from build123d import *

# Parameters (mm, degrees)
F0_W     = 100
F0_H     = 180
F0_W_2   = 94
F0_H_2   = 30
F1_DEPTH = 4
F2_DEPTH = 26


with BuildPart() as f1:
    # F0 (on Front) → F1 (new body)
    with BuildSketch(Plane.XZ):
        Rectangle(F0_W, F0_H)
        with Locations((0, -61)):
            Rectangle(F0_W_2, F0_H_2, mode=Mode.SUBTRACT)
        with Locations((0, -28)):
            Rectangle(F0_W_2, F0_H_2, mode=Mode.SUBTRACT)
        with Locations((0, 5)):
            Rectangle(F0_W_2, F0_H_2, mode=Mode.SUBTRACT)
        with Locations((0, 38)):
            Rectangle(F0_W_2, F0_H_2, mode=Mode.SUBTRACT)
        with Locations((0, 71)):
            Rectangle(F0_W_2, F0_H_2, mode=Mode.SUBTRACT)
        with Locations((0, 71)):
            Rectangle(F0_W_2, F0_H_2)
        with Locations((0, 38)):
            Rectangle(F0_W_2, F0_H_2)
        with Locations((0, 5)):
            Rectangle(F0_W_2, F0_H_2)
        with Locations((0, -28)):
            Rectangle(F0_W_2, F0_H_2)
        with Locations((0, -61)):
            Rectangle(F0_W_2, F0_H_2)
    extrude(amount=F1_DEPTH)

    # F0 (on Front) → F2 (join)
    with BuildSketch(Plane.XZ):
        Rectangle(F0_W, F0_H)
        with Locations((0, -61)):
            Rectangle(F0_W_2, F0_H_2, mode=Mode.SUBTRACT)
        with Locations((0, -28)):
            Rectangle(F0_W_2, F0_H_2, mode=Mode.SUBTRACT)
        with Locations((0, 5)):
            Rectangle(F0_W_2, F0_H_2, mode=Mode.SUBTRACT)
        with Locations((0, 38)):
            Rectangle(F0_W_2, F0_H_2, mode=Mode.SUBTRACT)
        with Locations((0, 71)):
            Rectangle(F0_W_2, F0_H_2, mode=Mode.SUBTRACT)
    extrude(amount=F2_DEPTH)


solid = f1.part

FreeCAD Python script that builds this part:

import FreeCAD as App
import Part
import Sketcher

V = App.Vector


def add_polygon(sketch, points):
    """Adds a closed chain of lines whose ends are joined by coincident constraints."""
    first, n = sketch.GeometryCount, len(points)
    for a, b in zip(points, points[1:] + points[:1]):
        sketch.addGeometry(Part.LineSegment(App.Vector(*a, 0), App.Vector(*b, 0)), False)
    for i in range(n):
        sketch.addConstraint(Sketcher.Constraint("Coincident", first + i, 2, first + (i + 1) % n, 1))

doc = App.newDocument("Part")
params = doc.addObject("Spreadsheet::Sheet", "Params")
for row, (alias, value) in enumerate([
    ("sketch1_width", "100 mm"),
    ("sketch1_height", "180 mm"),
    ("pad1_length", "4 mm"),
    ("sketch2_width", "100 mm"),
    ("sketch2_width2", "94 mm"),
    ("sketch2_height", "180 mm"),
    ("sketch2_height2", "30 mm"),
    ("pad2_length", "26 mm"),
], start=1):
    params.set(f"A{row}", alias)
    params.set(f"B{row}", "=" + value)
    params.setAlias(f"B{row}", alias)

body = doc.addObject("PartDesign::Body", "Body")

sketch1 = doc.addObject("Sketcher::SketchObject", "Sketch")
body.addObject(sketch1)
sketch1.AttachmentSupport = (doc.XZ_Plane, [""])
sketch1.MapMode = "FlatFace"
add_polygon(sketch1, [(-50, 90), (-50, -90), (50, -90), (50, 90)])
sketch1.addConstraint([
    Sketcher.Constraint("Vertical", 0),
    Sketcher.Constraint("Horizontal", 1),
    Sketcher.Constraint("Vertical", 2),
    Sketcher.Constraint("Horizontal", 3),
    Sketcher.Constraint("Symmetric", 0, 2, 2, 2, -1, 1),
    Sketcher.Constraint("DistanceX", 1, 1, 1, 2, 100.0),
    Sketcher.Constraint("DistanceY", 0, 2, 0, 1, 180.0),
])
sketch1.setExpression("Constraints[9]", "Params.sketch1_width")
sketch1.setExpression("Constraints[10]", "Params.sketch1_height")
pad1 = doc.addObject("PartDesign::Pad", "Pad")
body.addObject(pad1)
pad1.Profile = sketch1
pad1.setExpression("Length", "Params.pad1_length")

sketch2 = doc.addObject("Sketcher::SketchObject", "Sketch001")
body.addObject(sketch2)
sketch2.AttachmentSupport = (doc.XZ_Plane, [""])
sketch2.MapMode = "FlatFace"
add_polygon(sketch2, [(-50, 90), (-50, -90), (50, -90), (50, 90)])
add_polygon(sketch2, [(47, -76), (-47, -76), (-47, -46), (47, -46)])
add_polygon(sketch2, [(47, -43), (-47, -43), (-47, -13), (47, -13)])
add_polygon(sketch2, [(47, -10), (-47, -10), (-47, 20), (47, 20)])
add_polygon(sketch2, [(47, 23), (-47, 23), (-47, 53), (47, 53)])
add_polygon(sketch2, [(47, 56), (-47, 56), (-47, 86), (47, 86)])
sketch2.addConstraint([
    Sketcher.Constraint("Vertical", 0),
    Sketcher.Constraint("Horizontal", 1),
    Sketcher.Constraint("Vertical", 2),
    Sketcher.Constraint("Horizontal", 3),
    Sketcher.Constraint("Horizontal", 4),
    Sketcher.Constraint("Vertical", 5),
    Sketcher.Constraint("Horizontal", 6),
    Sketcher.Constraint("Vertical", 7),
    Sketcher.Constraint("Horizontal", 8),
    Sketcher.Constraint("Vertical", 9),
    Sketcher.Constraint("Horizontal", 10),
    Sketcher.Constraint("Vertical", 11),
    Sketcher.Constraint("Horizontal", 12),
    Sketcher.Constraint("Vertical", 13),
    Sketcher.Constraint("Horizontal", 14),
    Sketcher.Constraint("Vertical", 15),
    Sketcher.Constraint("Horizontal", 16),
    Sketcher.Constraint("Vertical", 17),
    Sketcher.Constraint("Horizontal", 18),
    Sketcher.Constraint("Vertical", 19),
    Sketcher.Constraint("Horizontal", 20),
    Sketcher.Constraint("Vertical", 21),
    Sketcher.Constraint("Horizontal", 22),
    Sketcher.Constraint("Vertical", 23),
    Sketcher.Constraint("Symmetric", 0, 2, 2, 2, -1, 1),
    Sketcher.Constraint("Vertical", 5, 2, 8, 2),
    Sketcher.Constraint("Vertical", 7, 2, 10, 2),
    Sketcher.Constraint("Vertical", 9, 2, 12, 2),
    Sketcher.Constraint("Vertical", 11, 2, 14, 2),
    Sketcher.Constraint("Vertical", 13, 2, 16, 2),
    Sketcher.Constraint("Vertical", 15, 2, 18, 2),
    Sketcher.Constraint("Vertical", 17, 2, 20, 2),
    Sketcher.Constraint("Vertical", 19, 2, 22, 2),
    Sketcher.Constraint("Equal", 7, 9),
    Sketcher.Constraint("Equal", 11, 13),
    Sketcher.Constraint("Equal", 15, 17),
    Sketcher.Constraint("Equal", 19, 21),
    Sketcher.Constraint("DistanceX", 1, 1, 1, 2, 100.0),
    Sketcher.Constraint("DistanceX", 4, 2, 4, 1, 94.0),
    Sketcher.Constraint("DistanceY", 0, 2, 0, 1, 180.0),
    Sketcher.Constraint("DistanceY", 5, 1, 5, 2, 30.0),
    Sketcher.Constraint("DistanceX", 4, 2, -1, 1, 47.0),
    Sketcher.Constraint("DistanceY", 4, 2, -1, 1, 76.0),
    Sketcher.Constraint("DistanceY", 8, 2, -1, 1, 43.0),
    Sketcher.Constraint("DistanceY", 12, 2, -1, 1, 10.0),
    Sketcher.Constraint("DistanceY", -1, 1, 16, 2, 23.0),
    Sketcher.Constraint("DistanceY", -1, 1, 20, 2, 56.0),
])
sketch2.setExpression("Constraints[61]", "Params.sketch2_width")
sketch2.setExpression("Constraints[62]", "Params.sketch2_width2")
sketch2.setExpression("Constraints[63]", "Params.sketch2_height")
sketch2.setExpression("Constraints[64]", "Params.sketch2_height2")
pad2 = doc.addObject("PartDesign::Pad", "Pad001")
body.addObject(pad2)
pad2.Profile = sketch2
pad2.setExpression("Length", "Params.pad2_length")

doc.recompute()
